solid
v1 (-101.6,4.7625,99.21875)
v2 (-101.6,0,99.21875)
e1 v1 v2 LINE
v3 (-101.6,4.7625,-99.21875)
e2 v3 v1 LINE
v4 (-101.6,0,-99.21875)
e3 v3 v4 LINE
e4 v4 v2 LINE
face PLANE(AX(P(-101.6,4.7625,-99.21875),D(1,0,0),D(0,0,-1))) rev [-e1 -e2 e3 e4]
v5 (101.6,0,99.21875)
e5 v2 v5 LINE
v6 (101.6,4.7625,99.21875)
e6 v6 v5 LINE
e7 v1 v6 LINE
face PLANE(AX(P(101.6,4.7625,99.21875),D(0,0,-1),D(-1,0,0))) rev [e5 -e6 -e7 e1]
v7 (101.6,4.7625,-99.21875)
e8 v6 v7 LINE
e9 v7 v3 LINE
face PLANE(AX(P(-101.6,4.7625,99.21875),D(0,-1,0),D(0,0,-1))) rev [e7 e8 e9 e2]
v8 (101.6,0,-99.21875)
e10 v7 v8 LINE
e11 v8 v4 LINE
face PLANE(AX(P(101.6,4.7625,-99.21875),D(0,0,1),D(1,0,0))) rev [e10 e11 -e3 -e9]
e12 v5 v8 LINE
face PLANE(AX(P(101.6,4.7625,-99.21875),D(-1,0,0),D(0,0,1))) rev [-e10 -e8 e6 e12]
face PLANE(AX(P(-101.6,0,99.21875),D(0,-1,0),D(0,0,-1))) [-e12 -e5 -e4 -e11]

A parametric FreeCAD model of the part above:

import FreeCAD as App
import Part
import Sketcher
from FreeCAD import Vector
Q = App.Units.Quantity

doc = App.newDocument("Part")
body = doc.addObject("PartDesign::Body", "Body")

# Sketch on XZ plane
sketch1 = body.newObject("Sketcher::SketchObject", "Sketch")
sketch1.AttachmentSupport = (doc.getObject("XZ_Plane"), [""])
sketch1.MapMode = "FlatFace"
sketch1.addGeometry([
    Part.LineSegment(Vector(-101.6, -99.21875, 0), Vector(-101.6, 99.21875, 0)),
    Part.LineSegment(Vector(-101.6, 99.21875, 0), Vector(101.6, 99.21875, 0)),
    Part.LineSegment(Vector(101.6, 99.21875, 0), Vector(101.6, -99.21875, 0)),
    Part.LineSegment(Vector(101.6, -99.21875, 0), Vector(-101.6, -99.21875, 0)),
], False)
sketch1.addConstraint([
    Sketcher.Constraint("Coincident", 0, 2, 1, 1),
    Sketcher.Constraint("Coincident", 1, 2, 2, 1),
    Sketcher.Constraint("Coincident", 2, 2, 3, 1),
    Sketcher.Constraint("Coincident", 3, 2, 0, 1),
    Sketcher.Constraint("Vertical", 0),
    Sketcher.Constraint("Horizontal", 1),
    Sketcher.Constraint("Vertical", 2),
    Sketcher.Constraint("Horizontal", 3),
    Sketcher.Constraint("Symmetric", 0, 2, 2, 2, -1, 1),
    Sketcher.Constraint("DistanceX", 1, 1, 1, 2, Q("8 in")),
    Sketcher.Constraint("DistanceY", 0, 1, 0, 2, Q("7.8125 in")),
])
pad1 = body.newObject("PartDesign::Pad", "Pad")
pad1.Profile = sketch1
pad1.Length = Q("0.1875 in")
pad1.Reversed = True

doc.recompute()
